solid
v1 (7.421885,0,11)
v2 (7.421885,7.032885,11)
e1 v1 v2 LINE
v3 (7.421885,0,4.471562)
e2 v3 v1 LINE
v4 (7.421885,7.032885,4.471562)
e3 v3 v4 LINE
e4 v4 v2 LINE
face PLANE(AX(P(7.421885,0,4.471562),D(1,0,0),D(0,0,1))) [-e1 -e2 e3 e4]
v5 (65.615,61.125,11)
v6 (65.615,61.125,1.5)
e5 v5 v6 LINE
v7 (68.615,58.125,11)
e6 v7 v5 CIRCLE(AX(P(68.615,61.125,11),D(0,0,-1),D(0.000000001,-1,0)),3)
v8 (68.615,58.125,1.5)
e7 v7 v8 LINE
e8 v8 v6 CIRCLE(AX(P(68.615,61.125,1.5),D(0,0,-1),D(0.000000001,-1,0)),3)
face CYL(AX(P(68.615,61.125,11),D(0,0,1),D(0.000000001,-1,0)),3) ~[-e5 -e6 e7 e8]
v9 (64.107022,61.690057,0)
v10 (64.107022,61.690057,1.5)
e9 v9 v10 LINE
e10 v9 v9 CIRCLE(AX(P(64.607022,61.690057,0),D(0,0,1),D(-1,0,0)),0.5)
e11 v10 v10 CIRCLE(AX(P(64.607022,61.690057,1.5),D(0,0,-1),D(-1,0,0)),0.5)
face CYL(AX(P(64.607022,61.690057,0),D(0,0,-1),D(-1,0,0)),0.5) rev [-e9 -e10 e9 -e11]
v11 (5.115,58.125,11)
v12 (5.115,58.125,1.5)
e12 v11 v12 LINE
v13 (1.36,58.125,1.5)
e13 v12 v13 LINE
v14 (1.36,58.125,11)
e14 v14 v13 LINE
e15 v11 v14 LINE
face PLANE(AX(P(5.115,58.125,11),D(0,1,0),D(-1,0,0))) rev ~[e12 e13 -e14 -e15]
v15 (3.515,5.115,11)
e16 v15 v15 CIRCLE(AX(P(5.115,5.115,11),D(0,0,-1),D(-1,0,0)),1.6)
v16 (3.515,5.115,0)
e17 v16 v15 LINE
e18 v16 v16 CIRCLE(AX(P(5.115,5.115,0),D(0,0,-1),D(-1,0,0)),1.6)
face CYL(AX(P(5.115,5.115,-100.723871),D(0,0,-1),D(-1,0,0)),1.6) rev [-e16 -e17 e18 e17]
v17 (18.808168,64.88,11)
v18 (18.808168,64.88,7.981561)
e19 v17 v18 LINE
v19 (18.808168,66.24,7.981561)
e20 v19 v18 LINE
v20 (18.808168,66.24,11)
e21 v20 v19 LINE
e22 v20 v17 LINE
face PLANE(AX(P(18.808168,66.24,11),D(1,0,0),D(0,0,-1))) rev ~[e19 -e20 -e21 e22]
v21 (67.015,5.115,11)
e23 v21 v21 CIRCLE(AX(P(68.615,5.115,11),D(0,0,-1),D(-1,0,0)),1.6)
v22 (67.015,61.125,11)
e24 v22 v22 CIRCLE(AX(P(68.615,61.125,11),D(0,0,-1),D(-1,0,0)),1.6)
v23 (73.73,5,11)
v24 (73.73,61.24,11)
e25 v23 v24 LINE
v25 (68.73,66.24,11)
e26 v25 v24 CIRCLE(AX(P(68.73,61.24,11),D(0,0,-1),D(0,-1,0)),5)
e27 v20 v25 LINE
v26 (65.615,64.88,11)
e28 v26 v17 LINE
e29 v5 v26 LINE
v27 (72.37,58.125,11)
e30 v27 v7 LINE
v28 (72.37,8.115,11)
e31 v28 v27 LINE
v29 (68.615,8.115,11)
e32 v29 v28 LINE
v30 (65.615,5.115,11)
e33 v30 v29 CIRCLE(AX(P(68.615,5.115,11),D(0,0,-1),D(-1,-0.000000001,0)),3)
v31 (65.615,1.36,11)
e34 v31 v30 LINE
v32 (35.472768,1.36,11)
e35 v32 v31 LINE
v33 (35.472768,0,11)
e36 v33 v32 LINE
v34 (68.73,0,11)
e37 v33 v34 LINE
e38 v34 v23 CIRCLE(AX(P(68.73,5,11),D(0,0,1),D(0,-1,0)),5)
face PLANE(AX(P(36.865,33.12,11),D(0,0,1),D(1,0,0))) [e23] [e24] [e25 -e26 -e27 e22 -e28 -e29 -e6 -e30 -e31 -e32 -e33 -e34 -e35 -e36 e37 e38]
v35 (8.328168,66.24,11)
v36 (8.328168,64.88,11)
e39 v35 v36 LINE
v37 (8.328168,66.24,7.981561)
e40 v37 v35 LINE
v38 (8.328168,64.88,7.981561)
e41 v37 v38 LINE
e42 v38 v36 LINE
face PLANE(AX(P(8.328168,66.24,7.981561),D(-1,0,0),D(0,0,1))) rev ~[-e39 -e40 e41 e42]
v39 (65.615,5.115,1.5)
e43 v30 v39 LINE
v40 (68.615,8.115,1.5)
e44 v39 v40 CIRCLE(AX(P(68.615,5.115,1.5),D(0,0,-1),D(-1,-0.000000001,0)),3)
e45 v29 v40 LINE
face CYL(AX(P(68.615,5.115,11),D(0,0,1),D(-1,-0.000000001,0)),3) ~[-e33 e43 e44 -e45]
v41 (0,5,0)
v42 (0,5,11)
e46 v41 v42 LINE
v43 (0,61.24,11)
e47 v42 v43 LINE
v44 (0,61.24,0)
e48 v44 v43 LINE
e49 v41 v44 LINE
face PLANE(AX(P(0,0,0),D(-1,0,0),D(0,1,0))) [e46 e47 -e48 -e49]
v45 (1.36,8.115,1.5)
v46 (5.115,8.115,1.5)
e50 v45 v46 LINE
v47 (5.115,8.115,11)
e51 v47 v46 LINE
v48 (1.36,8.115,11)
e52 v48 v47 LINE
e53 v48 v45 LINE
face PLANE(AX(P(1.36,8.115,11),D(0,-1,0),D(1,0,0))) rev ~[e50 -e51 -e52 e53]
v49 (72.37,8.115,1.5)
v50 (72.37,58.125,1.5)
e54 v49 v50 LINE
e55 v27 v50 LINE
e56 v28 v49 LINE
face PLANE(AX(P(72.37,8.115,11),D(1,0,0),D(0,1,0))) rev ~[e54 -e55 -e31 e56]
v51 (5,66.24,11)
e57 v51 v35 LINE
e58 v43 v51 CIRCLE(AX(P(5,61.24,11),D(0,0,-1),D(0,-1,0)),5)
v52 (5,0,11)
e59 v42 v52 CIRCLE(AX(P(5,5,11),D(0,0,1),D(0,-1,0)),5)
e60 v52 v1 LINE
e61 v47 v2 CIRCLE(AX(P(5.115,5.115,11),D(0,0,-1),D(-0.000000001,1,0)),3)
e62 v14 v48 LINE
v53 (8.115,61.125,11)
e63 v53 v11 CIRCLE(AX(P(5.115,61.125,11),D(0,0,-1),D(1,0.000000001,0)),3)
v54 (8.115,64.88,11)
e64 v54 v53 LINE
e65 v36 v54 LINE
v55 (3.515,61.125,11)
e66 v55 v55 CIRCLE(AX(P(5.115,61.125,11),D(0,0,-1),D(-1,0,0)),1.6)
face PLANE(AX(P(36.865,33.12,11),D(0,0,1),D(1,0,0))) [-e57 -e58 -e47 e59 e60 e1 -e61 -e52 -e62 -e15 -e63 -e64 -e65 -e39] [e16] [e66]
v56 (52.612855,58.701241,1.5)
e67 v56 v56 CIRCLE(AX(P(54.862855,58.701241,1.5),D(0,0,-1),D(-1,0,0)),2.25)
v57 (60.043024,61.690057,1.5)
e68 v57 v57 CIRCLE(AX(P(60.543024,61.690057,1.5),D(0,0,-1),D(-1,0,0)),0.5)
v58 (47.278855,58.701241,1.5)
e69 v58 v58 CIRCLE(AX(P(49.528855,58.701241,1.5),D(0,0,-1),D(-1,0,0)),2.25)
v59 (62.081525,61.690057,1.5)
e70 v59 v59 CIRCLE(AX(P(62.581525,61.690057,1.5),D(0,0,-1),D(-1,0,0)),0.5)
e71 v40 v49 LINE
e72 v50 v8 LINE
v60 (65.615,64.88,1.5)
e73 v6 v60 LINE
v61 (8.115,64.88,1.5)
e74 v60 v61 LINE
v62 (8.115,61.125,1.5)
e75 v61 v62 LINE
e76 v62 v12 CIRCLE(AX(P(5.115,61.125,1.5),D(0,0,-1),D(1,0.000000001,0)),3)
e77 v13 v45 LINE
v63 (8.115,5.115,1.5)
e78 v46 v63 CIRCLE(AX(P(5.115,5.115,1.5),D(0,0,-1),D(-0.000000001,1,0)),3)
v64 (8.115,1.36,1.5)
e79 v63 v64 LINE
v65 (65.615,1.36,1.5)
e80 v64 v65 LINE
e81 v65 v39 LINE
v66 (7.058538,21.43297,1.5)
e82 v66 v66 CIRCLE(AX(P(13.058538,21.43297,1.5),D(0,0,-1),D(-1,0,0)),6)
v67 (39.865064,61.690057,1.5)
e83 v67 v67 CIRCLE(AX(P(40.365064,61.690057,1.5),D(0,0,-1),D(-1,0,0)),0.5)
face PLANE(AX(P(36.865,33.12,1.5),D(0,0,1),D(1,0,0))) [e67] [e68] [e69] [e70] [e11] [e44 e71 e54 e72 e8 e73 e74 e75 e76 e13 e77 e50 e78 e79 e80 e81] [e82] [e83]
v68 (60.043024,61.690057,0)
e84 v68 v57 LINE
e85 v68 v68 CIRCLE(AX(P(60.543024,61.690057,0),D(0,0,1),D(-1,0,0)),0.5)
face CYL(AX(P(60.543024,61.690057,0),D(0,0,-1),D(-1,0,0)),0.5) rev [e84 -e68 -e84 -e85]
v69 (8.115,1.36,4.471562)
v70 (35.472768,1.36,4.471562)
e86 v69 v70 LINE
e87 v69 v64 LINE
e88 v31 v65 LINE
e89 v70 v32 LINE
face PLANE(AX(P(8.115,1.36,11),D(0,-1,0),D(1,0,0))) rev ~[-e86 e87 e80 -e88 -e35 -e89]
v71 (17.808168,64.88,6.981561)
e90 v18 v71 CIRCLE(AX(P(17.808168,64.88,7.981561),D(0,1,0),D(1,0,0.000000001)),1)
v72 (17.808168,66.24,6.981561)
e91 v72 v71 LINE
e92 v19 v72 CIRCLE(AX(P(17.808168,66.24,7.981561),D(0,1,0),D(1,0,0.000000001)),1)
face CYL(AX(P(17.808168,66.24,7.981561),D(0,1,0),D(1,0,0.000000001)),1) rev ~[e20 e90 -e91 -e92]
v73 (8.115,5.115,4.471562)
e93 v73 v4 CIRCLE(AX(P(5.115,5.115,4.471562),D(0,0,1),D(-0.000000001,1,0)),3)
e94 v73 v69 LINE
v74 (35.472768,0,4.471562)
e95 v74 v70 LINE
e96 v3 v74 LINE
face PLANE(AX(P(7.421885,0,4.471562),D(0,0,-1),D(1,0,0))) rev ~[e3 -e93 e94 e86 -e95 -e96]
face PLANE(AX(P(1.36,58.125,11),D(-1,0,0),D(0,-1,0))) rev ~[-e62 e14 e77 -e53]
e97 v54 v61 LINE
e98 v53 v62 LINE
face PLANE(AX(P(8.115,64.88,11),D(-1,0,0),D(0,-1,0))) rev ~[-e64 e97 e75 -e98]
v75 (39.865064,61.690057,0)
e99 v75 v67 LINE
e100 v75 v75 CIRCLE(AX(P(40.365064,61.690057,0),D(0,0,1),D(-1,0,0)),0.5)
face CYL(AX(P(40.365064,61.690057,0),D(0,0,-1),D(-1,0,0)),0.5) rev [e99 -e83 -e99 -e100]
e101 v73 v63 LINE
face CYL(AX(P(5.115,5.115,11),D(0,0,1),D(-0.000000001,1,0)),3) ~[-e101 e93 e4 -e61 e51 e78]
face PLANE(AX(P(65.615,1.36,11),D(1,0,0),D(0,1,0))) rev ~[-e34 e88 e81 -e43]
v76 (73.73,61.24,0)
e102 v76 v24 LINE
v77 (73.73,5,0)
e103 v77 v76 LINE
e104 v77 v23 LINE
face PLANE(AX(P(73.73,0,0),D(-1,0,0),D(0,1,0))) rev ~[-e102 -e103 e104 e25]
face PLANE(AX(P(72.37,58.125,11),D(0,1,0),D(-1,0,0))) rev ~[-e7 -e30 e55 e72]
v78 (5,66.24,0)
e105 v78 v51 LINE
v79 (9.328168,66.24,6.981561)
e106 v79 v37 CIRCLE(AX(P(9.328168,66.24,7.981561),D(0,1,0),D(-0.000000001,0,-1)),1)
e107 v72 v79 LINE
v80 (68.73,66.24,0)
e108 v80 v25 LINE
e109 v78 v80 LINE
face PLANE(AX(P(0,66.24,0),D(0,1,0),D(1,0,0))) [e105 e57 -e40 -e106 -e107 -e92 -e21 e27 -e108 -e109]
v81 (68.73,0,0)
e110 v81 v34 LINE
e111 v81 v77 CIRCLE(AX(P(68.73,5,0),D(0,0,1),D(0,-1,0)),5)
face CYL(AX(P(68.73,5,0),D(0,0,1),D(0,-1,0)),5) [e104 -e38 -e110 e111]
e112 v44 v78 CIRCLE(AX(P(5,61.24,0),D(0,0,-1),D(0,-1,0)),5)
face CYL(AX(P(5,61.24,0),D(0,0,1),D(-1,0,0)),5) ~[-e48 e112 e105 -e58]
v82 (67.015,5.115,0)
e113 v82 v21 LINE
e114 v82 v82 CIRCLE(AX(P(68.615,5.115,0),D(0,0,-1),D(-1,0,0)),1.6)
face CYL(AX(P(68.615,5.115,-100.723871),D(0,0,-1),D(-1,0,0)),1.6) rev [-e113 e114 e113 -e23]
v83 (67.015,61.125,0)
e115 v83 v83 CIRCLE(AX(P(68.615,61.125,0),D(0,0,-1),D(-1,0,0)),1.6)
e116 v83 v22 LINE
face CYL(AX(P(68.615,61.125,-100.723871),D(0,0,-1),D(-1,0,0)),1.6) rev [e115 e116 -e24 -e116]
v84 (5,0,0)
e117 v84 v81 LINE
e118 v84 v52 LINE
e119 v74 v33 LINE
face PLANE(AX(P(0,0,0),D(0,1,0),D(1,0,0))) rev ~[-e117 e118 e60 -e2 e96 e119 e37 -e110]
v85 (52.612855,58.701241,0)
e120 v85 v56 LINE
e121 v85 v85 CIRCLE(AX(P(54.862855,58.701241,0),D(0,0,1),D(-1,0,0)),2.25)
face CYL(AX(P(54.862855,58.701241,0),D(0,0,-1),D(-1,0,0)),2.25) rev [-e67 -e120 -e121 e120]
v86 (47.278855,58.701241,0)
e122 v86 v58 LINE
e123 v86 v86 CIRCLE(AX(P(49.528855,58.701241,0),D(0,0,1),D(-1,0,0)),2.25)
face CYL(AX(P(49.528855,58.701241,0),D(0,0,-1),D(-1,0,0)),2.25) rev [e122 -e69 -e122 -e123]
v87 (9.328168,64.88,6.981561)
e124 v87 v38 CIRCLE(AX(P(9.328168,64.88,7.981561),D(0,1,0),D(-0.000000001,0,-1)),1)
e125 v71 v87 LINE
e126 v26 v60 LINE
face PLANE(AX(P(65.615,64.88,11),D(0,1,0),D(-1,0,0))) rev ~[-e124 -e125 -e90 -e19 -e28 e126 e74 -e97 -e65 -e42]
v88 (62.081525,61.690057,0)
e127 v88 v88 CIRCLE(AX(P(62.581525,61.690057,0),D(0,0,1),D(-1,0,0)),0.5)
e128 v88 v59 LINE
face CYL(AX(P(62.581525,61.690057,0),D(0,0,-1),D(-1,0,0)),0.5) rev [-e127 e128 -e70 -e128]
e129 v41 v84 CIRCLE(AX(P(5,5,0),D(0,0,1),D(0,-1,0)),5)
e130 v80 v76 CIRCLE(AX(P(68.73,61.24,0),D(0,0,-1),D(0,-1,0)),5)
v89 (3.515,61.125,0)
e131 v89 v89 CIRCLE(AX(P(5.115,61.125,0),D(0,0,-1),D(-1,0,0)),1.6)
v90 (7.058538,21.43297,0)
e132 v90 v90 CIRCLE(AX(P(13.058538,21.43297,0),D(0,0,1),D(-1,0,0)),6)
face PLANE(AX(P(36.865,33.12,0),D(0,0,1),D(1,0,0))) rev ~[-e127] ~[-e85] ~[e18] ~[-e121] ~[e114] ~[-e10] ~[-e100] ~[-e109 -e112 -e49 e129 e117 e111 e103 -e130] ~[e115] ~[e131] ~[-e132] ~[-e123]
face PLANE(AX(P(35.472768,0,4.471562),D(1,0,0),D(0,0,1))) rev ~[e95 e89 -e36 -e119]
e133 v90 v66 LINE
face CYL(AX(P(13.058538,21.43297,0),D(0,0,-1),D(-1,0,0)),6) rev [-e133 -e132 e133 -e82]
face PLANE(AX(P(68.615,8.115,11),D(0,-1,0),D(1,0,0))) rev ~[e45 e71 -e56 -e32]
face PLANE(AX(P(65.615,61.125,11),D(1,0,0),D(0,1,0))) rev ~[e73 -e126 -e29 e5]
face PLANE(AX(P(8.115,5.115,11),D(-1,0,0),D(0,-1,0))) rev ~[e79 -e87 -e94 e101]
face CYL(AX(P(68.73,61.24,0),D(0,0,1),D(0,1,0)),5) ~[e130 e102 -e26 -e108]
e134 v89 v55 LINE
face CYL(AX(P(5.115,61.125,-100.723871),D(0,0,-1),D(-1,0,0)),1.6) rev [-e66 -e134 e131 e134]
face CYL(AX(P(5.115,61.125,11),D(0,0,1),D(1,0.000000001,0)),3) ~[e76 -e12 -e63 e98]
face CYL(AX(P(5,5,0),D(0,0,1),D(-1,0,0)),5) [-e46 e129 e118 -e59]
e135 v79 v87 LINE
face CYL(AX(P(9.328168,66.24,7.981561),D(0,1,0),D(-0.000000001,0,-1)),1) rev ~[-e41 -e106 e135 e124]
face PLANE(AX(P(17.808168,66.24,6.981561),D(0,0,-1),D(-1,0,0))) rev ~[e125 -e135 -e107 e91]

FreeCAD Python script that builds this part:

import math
import FreeCAD as App
import Part
import Sketcher
from FreeCAD import Vector


def edges_at(feature, points):
    """Names of the edges that pass closest to the given points."""
    edges = feature.Shape.Edges
    near = lambda p: min(range(len(edges)), key=lambda i: edges[i].distToShape(Part.Vertex(*p))[0])
    return sorted({f"Edge{near(p) + 1}" for p in points})


def add_polygon(sketch, points):
    """Adds a closed chain of lines whose ends are joined by coincident constraints."""
    first, n = sketch.GeometryCount, len(points)
    for a, b in zip(points, points[1:] + points[:1]):
        sketch.addGeometry(Part.LineSegment(App.Vector(*a, 0), App.Vector(*b, 0)), False)
    for i in range(n):
        sketch.addConstraint(Sketcher.Constraint("Coincident", first + i, 2, first + (i + 1) % n, 1))

doc = App.newDocument("Part")
body = doc.addObject("PartDesign::Body", "Body")

# Sketch on XY plane
sketch1 = body.newObject("Sketcher::SketchObject", "Sketch")
sketch1.AttachmentSupport = (doc.getObject("XY_Plane"), [""])
sketch1.MapMode = "FlatFace"
add_polygon(sketch1, [(0, 66), (0, 0), (74, 0), (74, 66)])  # lines 0-3
sketch1.addConstraint([
    Sketcher.Constraint("Vertical", 0),
    Sketcher.Constraint("Horizontal", 1),
    Sketcher.Constraint("Vertical", 2),
    Sketcher.Constraint("Horizontal", 3),
    Sketcher.Constraint("Coincident", 0, 2, -1, 1),
    Sketcher.Constraint("DistanceX", 1, 1, 1, 2, 73.73),
    Sketcher.Constraint("DistanceY", 0, 2, 0, 1, 66.24),
])
pad1 = body.newObject("PartDesign::Pad", "Pad")
pad1.Profile = sketch1
pad1.Length = 11

# Sketch on XY plane
sketch2 = body.newObject("Sketcher::SketchObject", "Sketch001")
sketch2.AttachmentSupport = (doc.getObject("XY_Plane"), [""])
sketch2.MapMode = "FlatFace"
sketch2.addGeometry([
    Part.Circle(Vector(5.1, 61.1, 0), Vector(0, 0, 1), 1.6),
    Part.Circle(Vector(68.6, 61.1, 0), Vector(0, 0, 1), 1.6),
    Part.Circle(Vector(68.6, 5.1, 0), Vector(0, 0, 1), 1.6),
    Part.Circle(Vector(5.1, 5.1, 0), Vector(0, 0, 1), 1.6),
], False)
sketch2.addConstraint([
    Sketcher.Constraint("Equal", 0, 1),
    Sketcher.Constraint("Equal", 1, 2),
    Sketcher.Constraint("Equal", 2, 3),
    Sketcher.Constraint("Horizontal", 0, 3, 1, 3),
    Sketcher.Constraint("Horizontal", 2, 3, 3, 3),
    Sketcher.Constraint("Vertical", 1, 3, 2, 3),
    Sketcher.Constraint("Vertical", 0, 3, 3, 3),
    Sketcher.Constraint("Diameter", 0, 3.2),
    Sketcher.Constraint("DistanceX", 0, 3, 1, 3, 63.5),
    Sketcher.Constraint("DistanceY", 2, 3, 1, 3, 56.01),
    Sketcher.Constraint("DistanceX", -1, 1, 0, 3, 5.115),
    Sketcher.Constraint("DistanceY", -1, 1, 0, 3, 61.125),
])
pocket1 = body.newObject("PartDesign::Pocket", "Pocket")
pocket1.Profile = sketch2
pocket1.Type = "ThroughAll"
pocket1.Midplane = True

# Sketch on XY plane
sketch3 = body.newObject("Sketcher::SketchObject", "Sketch002")
sketch3.AttachmentSupport = (doc.getObject("XY_Plane"), [""])
sketch3.MapMode = "FlatFace"
sketch3.AttachmentOffset = App.Placement(Vector(0, 0, 11), App.Rotation())
sketch3.addGeometry([
    Part.LineSegment(Vector(1.4, 58.1, 0), Vector(1.4, 8.1, 0)),  # 0
    Part.LineSegment(Vector(1.4, 8.1, 0), Vector(5.1, 8.1, 0)),  # 1
    Part.ArcOfCircle(Part.Circle(Vector(5.1, 5.1, 0), Vector(0, 0, 1), 3), math.radians(0), math.radians(90)),  # 2
    Part.LineSegment(Vector(8.1, 5.1, 0), Vector(8.1, 1.4, 0)),  # 3
    Part.LineSegment(Vector(8.1, 1.4, 0), Vector(65.6, 1.4, 0)),  # 4
    Part.LineSegment(Vector(65.6, 1.4, 0), Vector(65.6, 5.1, 0)),  # 5
    Part.ArcOfCircle(Part.Circle(Vector(68.6, 5.1, 0), Vector(0, 0, 1), 3), math.radians(90), math.radians(180)),  # 6
    Part.LineSegment(Vector(68.6, 8.1, 0), Vector(72.4, 8.1, 0)),  # 7
    Part.LineSegment(Vector(72.4, 8.1, 0), Vector(72.4, 58.1, 0)),  # 8
    Part.LineSegment(Vector(72.4, 58.1, 0), Vector(68.6, 58.1, 0)),  # 9
    Part.ArcOfCircle(Part.Circle(Vector(68.6, 61.1, 0), Vector(0, 0, 1), 3), math.radians(180), math.radians(270)),  # 10
    Part.LineSegment(Vector(65.6, 61.1, 0), Vector(65.6, 64.9, 0)),  # 11
    Part.LineSegment(Vector(65.6, 64.9, 0), Vector(8.1, 64.9, 0)),  # 12
    Part.LineSegment(Vector(8.1, 64.9, 0), Vector(8.1, 61.1, 0)),  # 13
    Part.ArcOfCircle(Part.Circle(Vector(5.1, 61.1, 0), Vector(0, 0, 1), 3), math.radians(-90), math.radians(0)),  # 14
    Part.LineSegment(Vector(5.1, 58.1, 0), Vector(1.4, 58.1, 0)),  # 15
], False)
sketch3.addConstraint([
    Sketcher.Constraint("Coincident", 0, 2, 1, 1),
    Sketcher.Constraint("Tangent", 1, 2, 2, 2),
    Sketcher.Constraint("Tangent", 2, 1, 3, 1),
    Sketcher.Constraint("Coincident", 3, 2, 4, 1),
    Sketcher.Constraint("Coincident", 4, 2, 5, 1),
    Sketcher.Constraint("Tangent", 5, 2, 6, 2),
    Sketcher.Constraint("Tangent", 6, 1, 7, 1),
    Sketcher.Constraint("Coincident", 7, 2, 8, 1),
    Sketcher.Constraint("Coincident", 8, 2, 9, 1),
    Sketcher.Constraint("Tangent", 9, 2, 10, 2),
    Sketcher.Constraint("Tangent", 10, 1, 11, 1),
    Sketcher.Constraint("Coincident", 11, 2, 12, 1),
    Sketcher.Constraint("Coincident", 12, 2, 13, 1),
    Sketcher.Constraint("Tangent", 13, 2, 14, 2),
    Sketcher.Constraint("Tangent", 14, 1, 15, 1),
    Sketcher.Constraint("Coincident", 15, 2, 0, 1),
    Sketcher.Constraint("Vertical", 0),
    Sketcher.Constraint("Horizontal", 1),
    Sketcher.Constraint("Vertical", 3),
    Sketcher.Constraint("Horizontal", 4),
    Sketcher.Constraint("Vertical", 5),
    Sketcher.Constraint("Horizontal", 7),
    Sketcher.Constraint("Vertical", 8),
    Sketcher.Constraint("Horizontal", 9),
    Sketcher.Constraint("Vertical", 11),
    Sketcher.Constraint("Horizontal", 12),
    Sketcher.Constraint("Vertical", 13),
    Sketcher.Constraint("Horizontal", 15),
    Sketcher.Constraint("Equal", 2, 6),
    Sketcher.Constraint("Equal", 6, 10),
    Sketcher.Constraint("Equal", 10, 14),
    Sketcher.Constraint("Horizontal", 2, 3, 6, 3),
    Sketcher.Constraint("Horizontal", 10, 3, 14, 3),
    Sketcher.Constraint("Vertical", 6, 3, 10, 3),
    Sketcher.Constraint("Vertical", 2, 3, 14, 3),
    Sketcher.Constraint("Equal", 1, 7),
    Sketcher.Constraint("Equal", 15, 3),
    Sketcher.Constraint("Equal", 5, 11),
    Sketcher.Constraint("Radius", 2, 3.0),
    Sketcher.Constraint("DistanceX", 4, 1, 4, 2, 57.5),
    Sketcher.Constraint("DistanceY", 0, 2, 0, 1, 50.01),
    Sketcher.Constraint("DistanceX", 1, 1, 1, 2, 3.755),
    Sketcher.Constraint("DistanceX", -1, 1, 0, 2, 1.36),
    Sketcher.Constraint("DistanceY", -1, 1, 3, 2, 1.36),
])
pocket2 = body.newObject("PartDesign::Pocket", "Pocket001")
pocket2.Profile = sketch3
pocket2.Length = 9.5

# Sketch on XY plane
sketch4 = body.newObject("Sketcher::SketchObject", "Sketch003")
sketch4.AttachmentSupport = (doc.getObject("XY_Plane"), [""])
sketch4.MapMode = "FlatFace"
sketch4.addGeometry([
    Part.Circle(Vector(62.58, 61.69, 0), Vector(0, 0, 1), 0.5),  # 0
    Part.Circle(Vector(60.54, 61.69, 0), Vector(0, 0, 1), 0.5),  # 1
    Part.Circle(Vector(64.61, 61.69, 0), Vector(0, 0, 1), 0.5),  # 2
    Part.Circle(Vector(54.86, 58.7, 0), Vector(0, 0, 1), 2.25),  # 3
    Part.Circle(Vector(49.53, 58.7, 0), Vector(0, 0, 1), 2.25),  # 4
    Part.Circle(Vector(40.37, 61.69, 0), Vector(0, 0, 1), 0.5),  # 5
    Part.Circle(Vector(13.06, 21.43, 0), Vector(0, 0, 1), 6),  # 6
], False)
sketch4.addConstraint([
    Sketcher.Constraint("Equal", 0, 1),
    Sketcher.Constraint("Equal", 1, 2),
    Sketcher.Constraint("Equal", 3, 4),
    Sketcher.Constraint("Equal", 2, 5),
    Sketcher.Constraint("Horizontal", 0, 3, 1, 3),
    Sketcher.Constraint("Horizontal", 1, 3, 2, 3),
    Sketcher.Constraint("Horizontal", 3, 3, 4, 3),
    Sketcher.Constraint("Horizontal", 2, 3, 5, 3),
    Sketcher.Constraint("Diameter", 0, 1.0),
    Sketcher.Constraint("Diameter", 6, 12.0),
    Sketcher.Constraint("Diameter", 3, 4.5),
    Sketcher.Constraint("DistanceX", 1, 3, 2, 3, 4.063998),
    Sketcher.Constraint("DistanceX", 4, 3, 3, 3, 5.334),
    Sketcher.Constraint("DistanceX", 1, 3, 0, 3, 2.038501),
    Sketcher.Constraint("DistanceX", -1, 1, 2, 3, 64.607022),
    Sketcher.Constraint("DistanceY", -1, 1, 3, 3, 58.701241),
    Sketcher.Constraint("DistanceX", -1, 1, 6, 3, 13.058538),
    Sketcher.Constraint("DistanceY", -1, 1, 6, 3, 21.43297),
    Sketcher.Constraint("DistanceX", 3, 3, 1, 3, 5.680169),
    Sketcher.Constraint("DistanceX", 5, 3, 4, 3, 9.163791),
    Sketcher.Constraint("DistanceY", -1, 1, 0, 3, 61.690057),
])
pocket3 = body.newObject("PartDesign::Pocket", "Pocket002")
pocket3.Profile = sketch4
pocket3.Length = 9
pocket3.Reversed = True

# Sketch on XZ plane
sketch5 = body.newObject("Sketcher::SketchObject", "Sketch004")
sketch5.AttachmentSupport = (doc.getObject("XZ_Plane"), [""])
sketch5.MapMode = "FlatFace"
sketch5.AttachmentOffset = App.Placement(Vector(0, 0, -66.24), App.Rotation())
sketch5.addGeometry([
    Part.LineSegment(Vector(17.8, 7, 0), Vector(9.3, 7, 0)),  # 0
    Part.ArcOfCircle(Part.Circle(Vector(9.3, 8, 0), Vector(0, 0, 1), 1), math.radians(-180), math.radians(-90)),  # 1
    Part.LineSegment(Vector(8.3, 8, 0), Vector(8.3, 11, 0)),  # 2
    Part.LineSegment(Vector(8.3, 11, 0), Vector(18.8, 11, 0)),  # 3
    Part.LineSegment(Vector(18.8, 11, 0), Vector(18.8, 8, 0)),  # 4
    Part.ArcOfCircle(Part.Circle(Vector(17.8, 8, 0), Vector(0, 0, 1), 1), math.radians(-90), math.radians(0)),  # 5
], False)
sketch5.addConstraint([
    Sketcher.Constraint("Tangent", 0, 2, 1, 2),
    Sketcher.Constraint("Tangent", 1, 1, 2, 1),
    Sketcher.Constraint("Coincident", 2, 2, 3, 1),
    Sketcher.Constraint("Coincident", 3, 2, 4, 1),
    Sketcher.Constraint("Tangent", 4, 2, 5, 2),
    Sketcher.Constraint("Tangent", 5, 1, 0, 1),
    Sketcher.Constraint("Horizontal", 0),
    Sketcher.Constraint("Vertical", 2),
    Sketcher.Constraint("Horizontal", 3),
    Sketcher.Constraint("Vertical", 4),
    Sketcher.Constraint("Equal", 1, 5),
    Sketcher.Constraint("Radius", 1, 1.0),
    Sketcher.Constraint("DistanceY", -1, 1, 2, 2, 11.0),
    Sketcher.Constraint("DistanceX", 0, 2, 0, 1, 8.48),
    Sketcher.Constraint("DistanceY", 2, 1, 2, 2, 3.018439),
    Sketcher.Constraint("DistanceX", -1, 1, 1, 3, 9.328168),
])
pocket4 = body.newObject("PartDesign::Pocket", "Pocket003")
pocket4.Profile = sketch5
pocket4.Length = 9
pocket4.Reversed = True

# Sketch on XZ plane
sketch6 = body.newObject("Sketcher::SketchObject", "Sketch005")
sketch6.AttachmentSupport = (doc.getObject("XZ_Plane"), [""])
sketch6.MapMode = "FlatFace"
add_polygon(sketch6, [(7, 11), (7, 4), (35, 4), (35, 11)])  # lines 0-3
sketch6.addConstraint([
    Sketcher.Constraint("Vertical", 0),
    Sketcher.Constraint("Horizontal", 1),
    Sketcher.Constraint("Vertical", 2),
    Sketcher.Constraint("Horizontal", 3),
    Sketcher.Constraint("DistanceY", 0, 2, 0, 1, 6.73),
    Sketcher.Constraint("DistanceX", 1, 1, 1, 2, 28.050883),
    Sketcher.Constraint("DistanceY", -1, 1, 0, 2, 4.471562),
    Sketcher.Constraint("DistanceX", -1, 1, 0, 2, 7.421885),
])
pocket5 = body.newObject("PartDesign::Pocket", "Pocket004")
pocket5.Profile = sketch6
pocket5.Length = 9
doc.recompute()

fillet = body.newObject("PartDesign::Fillet", "Fillet")
fillet.Base = (pocket5, edges_at(pocket5, [
    (0, 66.24, 5.5),
    (73.73, 66.24, 5.5),
    (73.73, 0, 5.5),
    (0, 0, 5.5),
]))
fillet.Radius = 5

doc.recompute()
